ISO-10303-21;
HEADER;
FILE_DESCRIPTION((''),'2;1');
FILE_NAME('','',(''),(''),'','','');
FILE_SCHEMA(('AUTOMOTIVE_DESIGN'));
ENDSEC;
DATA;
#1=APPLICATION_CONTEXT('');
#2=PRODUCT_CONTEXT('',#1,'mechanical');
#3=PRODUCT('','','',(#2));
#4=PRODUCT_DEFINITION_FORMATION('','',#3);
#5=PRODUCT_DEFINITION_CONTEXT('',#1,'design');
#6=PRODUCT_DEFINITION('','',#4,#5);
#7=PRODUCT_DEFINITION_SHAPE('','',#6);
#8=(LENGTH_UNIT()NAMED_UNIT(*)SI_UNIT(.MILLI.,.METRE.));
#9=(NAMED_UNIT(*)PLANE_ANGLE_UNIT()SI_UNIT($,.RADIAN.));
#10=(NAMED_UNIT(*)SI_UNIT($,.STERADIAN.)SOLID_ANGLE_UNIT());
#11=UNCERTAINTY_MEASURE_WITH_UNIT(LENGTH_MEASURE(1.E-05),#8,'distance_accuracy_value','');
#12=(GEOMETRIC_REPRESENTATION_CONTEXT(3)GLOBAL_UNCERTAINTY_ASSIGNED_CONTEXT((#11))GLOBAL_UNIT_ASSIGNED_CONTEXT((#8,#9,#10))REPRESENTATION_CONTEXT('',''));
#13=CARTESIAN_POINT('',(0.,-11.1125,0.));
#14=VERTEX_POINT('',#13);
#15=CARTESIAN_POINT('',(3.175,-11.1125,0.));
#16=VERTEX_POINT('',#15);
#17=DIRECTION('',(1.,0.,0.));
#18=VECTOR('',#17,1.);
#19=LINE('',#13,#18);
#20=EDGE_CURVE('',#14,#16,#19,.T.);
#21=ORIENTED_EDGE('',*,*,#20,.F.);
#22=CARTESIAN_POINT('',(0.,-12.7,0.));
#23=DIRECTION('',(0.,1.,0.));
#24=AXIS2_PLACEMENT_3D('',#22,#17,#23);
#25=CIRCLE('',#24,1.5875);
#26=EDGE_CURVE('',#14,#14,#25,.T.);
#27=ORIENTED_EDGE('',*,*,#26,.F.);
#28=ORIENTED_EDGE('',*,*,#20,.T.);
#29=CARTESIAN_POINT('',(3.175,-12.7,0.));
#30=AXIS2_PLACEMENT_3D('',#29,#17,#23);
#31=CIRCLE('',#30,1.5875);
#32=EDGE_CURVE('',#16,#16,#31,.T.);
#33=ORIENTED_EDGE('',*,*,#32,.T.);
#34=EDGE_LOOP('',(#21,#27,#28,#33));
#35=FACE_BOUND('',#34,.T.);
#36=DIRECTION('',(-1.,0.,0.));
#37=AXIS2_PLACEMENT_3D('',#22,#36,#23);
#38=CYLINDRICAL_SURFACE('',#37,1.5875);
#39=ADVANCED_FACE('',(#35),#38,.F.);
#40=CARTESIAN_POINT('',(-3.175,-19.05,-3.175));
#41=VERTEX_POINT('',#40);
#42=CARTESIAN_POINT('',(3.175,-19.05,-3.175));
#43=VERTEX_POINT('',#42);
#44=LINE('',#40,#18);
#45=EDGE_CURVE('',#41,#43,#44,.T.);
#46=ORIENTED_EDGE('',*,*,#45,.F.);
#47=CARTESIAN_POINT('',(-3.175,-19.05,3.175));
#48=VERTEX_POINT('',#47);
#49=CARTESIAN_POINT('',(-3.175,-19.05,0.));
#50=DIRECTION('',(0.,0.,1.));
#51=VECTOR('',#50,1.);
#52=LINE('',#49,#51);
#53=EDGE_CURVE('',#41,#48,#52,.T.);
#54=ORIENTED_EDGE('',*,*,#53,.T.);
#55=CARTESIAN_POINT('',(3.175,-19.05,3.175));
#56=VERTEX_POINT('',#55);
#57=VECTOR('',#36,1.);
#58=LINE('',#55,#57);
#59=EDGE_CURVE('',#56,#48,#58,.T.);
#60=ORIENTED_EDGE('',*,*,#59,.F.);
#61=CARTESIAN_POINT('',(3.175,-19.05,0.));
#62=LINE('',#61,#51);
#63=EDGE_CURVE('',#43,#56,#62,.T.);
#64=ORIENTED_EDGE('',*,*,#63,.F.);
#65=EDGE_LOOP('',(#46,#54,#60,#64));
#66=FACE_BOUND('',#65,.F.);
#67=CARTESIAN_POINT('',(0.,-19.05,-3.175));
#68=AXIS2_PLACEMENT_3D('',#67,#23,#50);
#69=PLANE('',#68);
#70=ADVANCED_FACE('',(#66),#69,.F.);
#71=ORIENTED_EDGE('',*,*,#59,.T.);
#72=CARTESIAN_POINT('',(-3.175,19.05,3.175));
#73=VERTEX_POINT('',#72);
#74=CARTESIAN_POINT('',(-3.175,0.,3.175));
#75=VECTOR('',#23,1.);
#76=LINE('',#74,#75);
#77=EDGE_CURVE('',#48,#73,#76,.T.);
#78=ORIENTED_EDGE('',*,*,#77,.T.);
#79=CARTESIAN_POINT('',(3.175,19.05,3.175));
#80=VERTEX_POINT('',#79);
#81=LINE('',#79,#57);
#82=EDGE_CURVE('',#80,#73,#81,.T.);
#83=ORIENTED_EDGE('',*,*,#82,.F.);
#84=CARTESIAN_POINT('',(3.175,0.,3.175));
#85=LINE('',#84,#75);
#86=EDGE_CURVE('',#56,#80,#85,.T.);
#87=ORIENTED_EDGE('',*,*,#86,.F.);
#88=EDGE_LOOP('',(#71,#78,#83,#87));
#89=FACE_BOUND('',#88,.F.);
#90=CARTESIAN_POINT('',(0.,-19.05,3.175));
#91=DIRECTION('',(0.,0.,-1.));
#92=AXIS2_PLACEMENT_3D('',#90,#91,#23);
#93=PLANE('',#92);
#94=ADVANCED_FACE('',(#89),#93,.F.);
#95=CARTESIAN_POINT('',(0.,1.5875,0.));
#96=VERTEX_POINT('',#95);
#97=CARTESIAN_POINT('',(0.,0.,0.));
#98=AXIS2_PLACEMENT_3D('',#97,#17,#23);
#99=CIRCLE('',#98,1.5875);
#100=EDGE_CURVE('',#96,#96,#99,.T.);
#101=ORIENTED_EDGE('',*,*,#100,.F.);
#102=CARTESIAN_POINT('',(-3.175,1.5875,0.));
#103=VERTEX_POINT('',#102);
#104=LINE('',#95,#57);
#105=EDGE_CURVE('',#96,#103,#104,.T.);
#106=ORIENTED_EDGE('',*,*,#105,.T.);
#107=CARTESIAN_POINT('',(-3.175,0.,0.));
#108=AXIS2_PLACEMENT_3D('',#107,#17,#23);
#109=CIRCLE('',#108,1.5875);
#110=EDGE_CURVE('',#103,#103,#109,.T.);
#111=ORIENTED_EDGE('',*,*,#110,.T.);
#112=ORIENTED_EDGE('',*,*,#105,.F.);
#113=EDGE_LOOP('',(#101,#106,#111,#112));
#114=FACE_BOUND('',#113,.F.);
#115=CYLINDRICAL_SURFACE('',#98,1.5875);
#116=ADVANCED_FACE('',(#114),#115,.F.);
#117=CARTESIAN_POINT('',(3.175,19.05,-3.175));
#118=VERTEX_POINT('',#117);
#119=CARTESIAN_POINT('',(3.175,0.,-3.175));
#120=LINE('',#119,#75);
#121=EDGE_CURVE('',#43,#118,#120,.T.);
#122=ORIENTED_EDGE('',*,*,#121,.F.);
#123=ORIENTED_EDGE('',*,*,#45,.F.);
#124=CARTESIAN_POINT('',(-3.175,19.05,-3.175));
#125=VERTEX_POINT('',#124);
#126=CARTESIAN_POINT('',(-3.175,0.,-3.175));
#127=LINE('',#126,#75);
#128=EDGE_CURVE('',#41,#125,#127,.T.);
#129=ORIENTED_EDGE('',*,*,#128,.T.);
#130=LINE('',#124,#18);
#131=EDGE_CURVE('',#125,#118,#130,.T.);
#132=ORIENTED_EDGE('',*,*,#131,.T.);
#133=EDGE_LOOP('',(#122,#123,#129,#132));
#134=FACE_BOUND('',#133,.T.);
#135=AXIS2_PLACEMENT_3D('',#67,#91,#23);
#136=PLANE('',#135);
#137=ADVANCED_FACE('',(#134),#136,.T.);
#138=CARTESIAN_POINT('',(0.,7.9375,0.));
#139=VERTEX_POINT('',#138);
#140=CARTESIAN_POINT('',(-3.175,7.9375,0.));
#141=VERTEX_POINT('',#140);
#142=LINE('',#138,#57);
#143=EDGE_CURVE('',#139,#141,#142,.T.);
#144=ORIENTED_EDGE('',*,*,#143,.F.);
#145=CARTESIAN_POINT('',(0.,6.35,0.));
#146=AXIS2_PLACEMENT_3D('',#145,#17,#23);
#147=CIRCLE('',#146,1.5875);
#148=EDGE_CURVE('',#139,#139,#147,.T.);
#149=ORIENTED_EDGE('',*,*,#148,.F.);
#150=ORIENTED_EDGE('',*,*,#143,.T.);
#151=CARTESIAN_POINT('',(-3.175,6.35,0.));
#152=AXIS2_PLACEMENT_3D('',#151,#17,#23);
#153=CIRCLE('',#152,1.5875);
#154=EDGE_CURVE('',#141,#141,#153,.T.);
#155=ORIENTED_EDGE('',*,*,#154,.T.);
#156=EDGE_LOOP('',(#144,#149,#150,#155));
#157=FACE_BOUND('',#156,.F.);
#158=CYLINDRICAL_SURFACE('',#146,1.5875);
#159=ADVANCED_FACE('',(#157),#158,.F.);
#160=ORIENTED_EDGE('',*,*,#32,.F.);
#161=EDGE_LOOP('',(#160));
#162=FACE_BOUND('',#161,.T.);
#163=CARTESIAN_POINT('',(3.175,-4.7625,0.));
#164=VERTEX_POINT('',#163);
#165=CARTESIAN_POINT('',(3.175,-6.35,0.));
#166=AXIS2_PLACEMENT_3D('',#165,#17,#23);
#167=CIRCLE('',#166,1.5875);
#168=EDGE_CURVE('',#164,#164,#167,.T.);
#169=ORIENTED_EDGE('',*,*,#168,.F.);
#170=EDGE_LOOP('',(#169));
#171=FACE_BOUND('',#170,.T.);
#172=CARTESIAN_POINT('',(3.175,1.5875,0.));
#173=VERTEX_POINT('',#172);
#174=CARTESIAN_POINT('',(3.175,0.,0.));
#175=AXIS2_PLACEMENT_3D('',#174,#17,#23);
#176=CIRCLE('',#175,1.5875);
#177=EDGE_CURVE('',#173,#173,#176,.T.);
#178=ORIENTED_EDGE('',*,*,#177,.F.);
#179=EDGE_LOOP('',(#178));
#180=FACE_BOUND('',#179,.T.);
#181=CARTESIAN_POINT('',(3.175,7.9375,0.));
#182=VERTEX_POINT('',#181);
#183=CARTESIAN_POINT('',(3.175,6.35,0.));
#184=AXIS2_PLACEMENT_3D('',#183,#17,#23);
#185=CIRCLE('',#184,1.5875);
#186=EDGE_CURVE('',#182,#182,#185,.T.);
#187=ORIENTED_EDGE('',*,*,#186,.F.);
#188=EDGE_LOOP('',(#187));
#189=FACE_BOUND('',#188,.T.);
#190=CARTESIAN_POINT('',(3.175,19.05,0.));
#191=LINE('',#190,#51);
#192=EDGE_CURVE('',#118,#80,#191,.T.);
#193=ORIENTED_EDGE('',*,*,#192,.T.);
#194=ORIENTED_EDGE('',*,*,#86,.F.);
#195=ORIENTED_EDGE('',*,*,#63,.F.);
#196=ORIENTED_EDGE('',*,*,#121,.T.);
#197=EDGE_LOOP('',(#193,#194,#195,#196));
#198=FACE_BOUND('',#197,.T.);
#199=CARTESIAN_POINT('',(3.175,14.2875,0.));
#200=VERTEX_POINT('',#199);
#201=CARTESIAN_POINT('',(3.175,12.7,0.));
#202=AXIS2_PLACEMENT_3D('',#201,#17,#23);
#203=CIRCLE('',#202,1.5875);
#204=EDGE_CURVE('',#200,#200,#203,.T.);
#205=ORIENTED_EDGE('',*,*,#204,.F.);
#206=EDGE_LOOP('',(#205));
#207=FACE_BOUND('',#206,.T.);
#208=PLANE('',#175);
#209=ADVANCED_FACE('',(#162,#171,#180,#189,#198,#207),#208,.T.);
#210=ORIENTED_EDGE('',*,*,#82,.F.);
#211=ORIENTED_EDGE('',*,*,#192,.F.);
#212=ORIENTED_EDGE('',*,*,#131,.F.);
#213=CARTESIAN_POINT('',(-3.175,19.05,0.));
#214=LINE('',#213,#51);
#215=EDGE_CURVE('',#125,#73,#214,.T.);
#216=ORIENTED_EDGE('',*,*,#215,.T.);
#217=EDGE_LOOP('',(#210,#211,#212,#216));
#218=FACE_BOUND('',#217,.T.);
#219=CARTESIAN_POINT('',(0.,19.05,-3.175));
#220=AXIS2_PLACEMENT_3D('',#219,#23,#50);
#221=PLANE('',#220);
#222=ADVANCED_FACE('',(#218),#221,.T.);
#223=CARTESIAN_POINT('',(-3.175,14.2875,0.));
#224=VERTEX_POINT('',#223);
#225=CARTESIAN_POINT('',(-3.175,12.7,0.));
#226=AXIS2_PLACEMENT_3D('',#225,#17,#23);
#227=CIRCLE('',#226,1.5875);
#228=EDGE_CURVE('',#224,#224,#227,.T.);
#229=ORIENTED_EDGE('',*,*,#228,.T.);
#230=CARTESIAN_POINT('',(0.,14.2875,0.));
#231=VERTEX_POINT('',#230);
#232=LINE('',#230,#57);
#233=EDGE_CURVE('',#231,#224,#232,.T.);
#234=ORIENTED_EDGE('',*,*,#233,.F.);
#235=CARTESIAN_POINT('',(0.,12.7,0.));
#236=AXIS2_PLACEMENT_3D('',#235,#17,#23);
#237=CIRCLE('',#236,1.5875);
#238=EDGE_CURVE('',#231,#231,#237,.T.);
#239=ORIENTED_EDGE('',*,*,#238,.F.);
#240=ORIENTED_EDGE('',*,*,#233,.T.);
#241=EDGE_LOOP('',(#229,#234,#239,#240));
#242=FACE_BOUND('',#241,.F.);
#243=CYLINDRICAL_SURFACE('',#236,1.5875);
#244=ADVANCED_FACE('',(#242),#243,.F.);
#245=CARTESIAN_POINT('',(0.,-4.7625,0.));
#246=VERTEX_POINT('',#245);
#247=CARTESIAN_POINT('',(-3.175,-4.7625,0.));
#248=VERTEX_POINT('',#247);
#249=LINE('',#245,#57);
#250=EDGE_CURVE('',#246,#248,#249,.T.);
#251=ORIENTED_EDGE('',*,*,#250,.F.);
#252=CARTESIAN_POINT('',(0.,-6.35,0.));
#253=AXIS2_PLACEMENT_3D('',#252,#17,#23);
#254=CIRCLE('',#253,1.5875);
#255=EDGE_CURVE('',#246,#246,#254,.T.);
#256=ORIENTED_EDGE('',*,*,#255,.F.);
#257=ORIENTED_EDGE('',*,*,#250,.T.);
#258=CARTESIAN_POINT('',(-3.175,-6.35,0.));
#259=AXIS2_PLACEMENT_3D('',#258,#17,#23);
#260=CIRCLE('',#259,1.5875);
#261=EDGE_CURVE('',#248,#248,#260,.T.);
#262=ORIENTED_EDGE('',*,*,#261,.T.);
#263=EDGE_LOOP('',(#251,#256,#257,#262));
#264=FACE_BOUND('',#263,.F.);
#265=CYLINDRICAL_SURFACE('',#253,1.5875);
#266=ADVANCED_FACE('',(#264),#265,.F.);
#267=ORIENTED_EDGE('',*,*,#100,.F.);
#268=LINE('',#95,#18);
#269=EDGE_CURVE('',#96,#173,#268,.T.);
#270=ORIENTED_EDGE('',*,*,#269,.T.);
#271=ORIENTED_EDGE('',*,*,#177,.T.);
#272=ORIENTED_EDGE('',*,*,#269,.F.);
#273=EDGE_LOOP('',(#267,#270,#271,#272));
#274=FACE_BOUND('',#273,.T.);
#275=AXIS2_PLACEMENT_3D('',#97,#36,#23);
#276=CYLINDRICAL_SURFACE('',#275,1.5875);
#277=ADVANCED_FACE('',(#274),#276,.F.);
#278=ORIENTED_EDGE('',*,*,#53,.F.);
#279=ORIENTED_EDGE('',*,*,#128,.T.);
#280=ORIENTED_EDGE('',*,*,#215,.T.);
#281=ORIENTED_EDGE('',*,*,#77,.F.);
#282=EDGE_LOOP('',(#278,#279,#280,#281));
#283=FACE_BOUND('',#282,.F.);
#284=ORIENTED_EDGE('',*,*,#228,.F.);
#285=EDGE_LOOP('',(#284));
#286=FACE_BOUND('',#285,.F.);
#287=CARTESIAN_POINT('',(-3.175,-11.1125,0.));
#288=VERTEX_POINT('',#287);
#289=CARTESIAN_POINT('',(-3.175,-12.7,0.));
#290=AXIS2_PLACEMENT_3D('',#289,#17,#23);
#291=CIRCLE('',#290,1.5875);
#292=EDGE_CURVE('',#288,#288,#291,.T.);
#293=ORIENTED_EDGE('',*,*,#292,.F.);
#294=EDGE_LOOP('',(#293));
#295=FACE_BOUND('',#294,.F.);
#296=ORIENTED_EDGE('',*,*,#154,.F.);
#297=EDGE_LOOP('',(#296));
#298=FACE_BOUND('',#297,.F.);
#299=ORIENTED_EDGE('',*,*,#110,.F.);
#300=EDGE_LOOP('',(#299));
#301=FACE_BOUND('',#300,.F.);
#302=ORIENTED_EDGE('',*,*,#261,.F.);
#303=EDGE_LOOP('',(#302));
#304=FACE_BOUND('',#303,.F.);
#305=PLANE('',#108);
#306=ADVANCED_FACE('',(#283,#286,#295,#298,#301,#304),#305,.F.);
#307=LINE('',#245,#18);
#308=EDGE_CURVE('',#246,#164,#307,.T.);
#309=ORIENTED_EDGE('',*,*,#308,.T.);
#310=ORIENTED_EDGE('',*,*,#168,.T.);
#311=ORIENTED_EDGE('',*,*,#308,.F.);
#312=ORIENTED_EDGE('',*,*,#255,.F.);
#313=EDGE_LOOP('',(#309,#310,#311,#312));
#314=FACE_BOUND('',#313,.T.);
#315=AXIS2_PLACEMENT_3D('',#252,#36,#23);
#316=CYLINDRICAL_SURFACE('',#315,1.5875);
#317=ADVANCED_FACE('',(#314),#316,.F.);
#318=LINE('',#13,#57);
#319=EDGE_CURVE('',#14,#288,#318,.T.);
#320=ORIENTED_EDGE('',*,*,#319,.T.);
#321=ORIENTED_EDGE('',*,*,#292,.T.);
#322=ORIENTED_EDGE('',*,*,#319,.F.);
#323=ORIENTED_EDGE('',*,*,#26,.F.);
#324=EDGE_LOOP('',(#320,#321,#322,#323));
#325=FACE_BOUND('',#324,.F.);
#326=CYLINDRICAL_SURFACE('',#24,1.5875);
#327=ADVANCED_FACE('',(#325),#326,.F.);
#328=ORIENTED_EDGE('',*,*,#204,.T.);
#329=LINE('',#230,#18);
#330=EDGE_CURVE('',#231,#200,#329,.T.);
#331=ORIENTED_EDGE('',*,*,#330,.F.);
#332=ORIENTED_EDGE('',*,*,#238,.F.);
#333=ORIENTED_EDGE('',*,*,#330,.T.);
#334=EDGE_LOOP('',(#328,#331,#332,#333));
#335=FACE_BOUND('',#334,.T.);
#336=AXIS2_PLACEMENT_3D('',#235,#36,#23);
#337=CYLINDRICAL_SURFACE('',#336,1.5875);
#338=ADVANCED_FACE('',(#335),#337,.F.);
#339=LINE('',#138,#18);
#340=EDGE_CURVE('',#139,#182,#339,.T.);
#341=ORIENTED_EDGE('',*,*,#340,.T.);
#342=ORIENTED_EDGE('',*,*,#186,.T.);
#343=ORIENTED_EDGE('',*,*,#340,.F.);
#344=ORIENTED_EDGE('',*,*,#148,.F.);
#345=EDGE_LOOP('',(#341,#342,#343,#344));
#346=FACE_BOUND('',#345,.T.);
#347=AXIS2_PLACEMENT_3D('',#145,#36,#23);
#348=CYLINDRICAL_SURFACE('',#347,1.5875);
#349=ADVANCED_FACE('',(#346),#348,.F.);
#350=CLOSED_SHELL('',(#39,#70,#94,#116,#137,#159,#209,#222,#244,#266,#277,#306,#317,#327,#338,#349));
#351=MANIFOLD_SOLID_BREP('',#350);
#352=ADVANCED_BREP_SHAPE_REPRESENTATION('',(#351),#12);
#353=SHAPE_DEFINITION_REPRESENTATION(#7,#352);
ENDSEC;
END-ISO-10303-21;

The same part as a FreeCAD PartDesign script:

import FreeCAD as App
import Part
import Sketcher

V = App.Vector
Q = App.Units.Quantity


def add_polygon(sketch, points):
    """Adds a closed chain of lines whose ends are joined by coincident constraints."""
    first, n = sketch.GeometryCount, len(points)
    for a, b in zip(points, points[1:] + points[:1]):
        sketch.addGeometry(Part.LineSegment(App.Vector(*a, 0), App.Vector(*b, 0)), False)
    for i in range(n):
        sketch.addConstraint(Sketcher.Constraint("Coincident", first + i, 2, first + (i + 1) % n, 1))

doc = App.newDocument("Part")
params = doc.addObject("Spreadsheet::Sheet", "Params")
for row, (alias, value) in enumerate([
    ("sketch1_diameter", "0.125 in"),
    ("sketch1_width", "1.5 in"),
    ("sketch1_height", "0.25 in"),
    ("pad1_length", "0.125 in"),
    ("pad1_length2", "0.125 in"),
], start=1):
    params.set(f"A{row}", alias)
    params.set(f"B{row}", "=" + value)
    params.setAlias(f"B{row}", alias)

body = doc.addObject("PartDesign::Body", "Body")

# Sketch on YZ plane
sketch1 = body.newObject("Sketcher::SketchObject", "Sketch")
sketch1.AttachmentSupport = (doc.getObject("YZ_Plane"), [""])
sketch1.MapMode = "FlatFace"
add_polygon(sketch1, [(-19.05, 3.175), (-19.05, -3.175), (19.05, -3.175), (19.05, 3.175)])  # lines 0-3
sketch1.addGeometry(Part.Circle(V(-12.7, 0, 0), V(0, 0, 1), 1.5875), False)  # 4
sketch1.addGeometry(Part.Circle(V(-6.35, 0, 0), V(0, 0, 1), 1.5875), False)  # 5
sketch1.addGeometry(Part.Circle(V(0, 0, 0), V(0, 0, 1), 1.5875), False)  # 6
sketch1.addGeometry(Part.Circle(V(6.35, 0, 0), V(0, 0, 1), 1.5875), False)  # 7
sketch1.addGeometry(Part.Circle(V(12.7, 0, 0), V(0, 0, 1), 1.5875), False)  # 8
sketch1.addConstraint([
    Sketcher.Constraint("Vertical", 0),
    Sketcher.Constraint("Horizontal", 1),
    Sketcher.Constraint("Vertical", 2),
    Sketcher.Constraint("Horizontal", 3),
    Sketcher.Constraint("Coincident", 6, 3, -1, 1),
    Sketcher.Constraint("Equal", 4, 5),
    Sketcher.Constraint("Equal", 5, 6),
    Sketcher.Constraint("Equal", 6, 7),
    Sketcher.Constraint("Equal", 7, 8),
    Sketcher.Constraint("Symmetric", 5, 3, 7, 3, -1, 1),
    Sketcher.Constraint("Symmetric", 4, 3, 8, 3, -1, 1),
    Sketcher.Constraint("Symmetric", 0, 2, 2, 2, -1, 1),
    Sketcher.Constraint("PointOnObject", 4, 3, -1),
    Sketcher.Constraint("PointOnObject", 5, 3, -1),
    Sketcher.Constraint("Diameter", 4, Q("0.125 in")),
    Sketcher.Constraint("DistanceX", 1, 1, 1, 2, Q("1.5 in")),
    Sketcher.Constraint("DistanceX", 4, 3, 8, 3, Q("1 in")),
    Sketcher.Constraint("DistanceX", 0, 2, 7, 3, Q("1 in")),
    Sketcher.Constraint("DistanceY", 0, 2, 0, 1, Q("0.25 in")),
])
sketch1.setExpression("Constraints[18]", "Params.sketch1_diameter")
sketch1.setExpression("Constraints[19]", "Params.sketch1_width")
sketch1.setExpression("Constraints[22]", "Params.sketch1_height")
pad1 = body.newObject("PartDesign::Pad", "Pad")
pad1.Profile = sketch1
pad1.Type = "TwoLengths"
pad1.setExpression("Length", "Params.pad1_length")
pad1.setExpression("Length2", "Params.pad1_length2")

doc.recompute()
